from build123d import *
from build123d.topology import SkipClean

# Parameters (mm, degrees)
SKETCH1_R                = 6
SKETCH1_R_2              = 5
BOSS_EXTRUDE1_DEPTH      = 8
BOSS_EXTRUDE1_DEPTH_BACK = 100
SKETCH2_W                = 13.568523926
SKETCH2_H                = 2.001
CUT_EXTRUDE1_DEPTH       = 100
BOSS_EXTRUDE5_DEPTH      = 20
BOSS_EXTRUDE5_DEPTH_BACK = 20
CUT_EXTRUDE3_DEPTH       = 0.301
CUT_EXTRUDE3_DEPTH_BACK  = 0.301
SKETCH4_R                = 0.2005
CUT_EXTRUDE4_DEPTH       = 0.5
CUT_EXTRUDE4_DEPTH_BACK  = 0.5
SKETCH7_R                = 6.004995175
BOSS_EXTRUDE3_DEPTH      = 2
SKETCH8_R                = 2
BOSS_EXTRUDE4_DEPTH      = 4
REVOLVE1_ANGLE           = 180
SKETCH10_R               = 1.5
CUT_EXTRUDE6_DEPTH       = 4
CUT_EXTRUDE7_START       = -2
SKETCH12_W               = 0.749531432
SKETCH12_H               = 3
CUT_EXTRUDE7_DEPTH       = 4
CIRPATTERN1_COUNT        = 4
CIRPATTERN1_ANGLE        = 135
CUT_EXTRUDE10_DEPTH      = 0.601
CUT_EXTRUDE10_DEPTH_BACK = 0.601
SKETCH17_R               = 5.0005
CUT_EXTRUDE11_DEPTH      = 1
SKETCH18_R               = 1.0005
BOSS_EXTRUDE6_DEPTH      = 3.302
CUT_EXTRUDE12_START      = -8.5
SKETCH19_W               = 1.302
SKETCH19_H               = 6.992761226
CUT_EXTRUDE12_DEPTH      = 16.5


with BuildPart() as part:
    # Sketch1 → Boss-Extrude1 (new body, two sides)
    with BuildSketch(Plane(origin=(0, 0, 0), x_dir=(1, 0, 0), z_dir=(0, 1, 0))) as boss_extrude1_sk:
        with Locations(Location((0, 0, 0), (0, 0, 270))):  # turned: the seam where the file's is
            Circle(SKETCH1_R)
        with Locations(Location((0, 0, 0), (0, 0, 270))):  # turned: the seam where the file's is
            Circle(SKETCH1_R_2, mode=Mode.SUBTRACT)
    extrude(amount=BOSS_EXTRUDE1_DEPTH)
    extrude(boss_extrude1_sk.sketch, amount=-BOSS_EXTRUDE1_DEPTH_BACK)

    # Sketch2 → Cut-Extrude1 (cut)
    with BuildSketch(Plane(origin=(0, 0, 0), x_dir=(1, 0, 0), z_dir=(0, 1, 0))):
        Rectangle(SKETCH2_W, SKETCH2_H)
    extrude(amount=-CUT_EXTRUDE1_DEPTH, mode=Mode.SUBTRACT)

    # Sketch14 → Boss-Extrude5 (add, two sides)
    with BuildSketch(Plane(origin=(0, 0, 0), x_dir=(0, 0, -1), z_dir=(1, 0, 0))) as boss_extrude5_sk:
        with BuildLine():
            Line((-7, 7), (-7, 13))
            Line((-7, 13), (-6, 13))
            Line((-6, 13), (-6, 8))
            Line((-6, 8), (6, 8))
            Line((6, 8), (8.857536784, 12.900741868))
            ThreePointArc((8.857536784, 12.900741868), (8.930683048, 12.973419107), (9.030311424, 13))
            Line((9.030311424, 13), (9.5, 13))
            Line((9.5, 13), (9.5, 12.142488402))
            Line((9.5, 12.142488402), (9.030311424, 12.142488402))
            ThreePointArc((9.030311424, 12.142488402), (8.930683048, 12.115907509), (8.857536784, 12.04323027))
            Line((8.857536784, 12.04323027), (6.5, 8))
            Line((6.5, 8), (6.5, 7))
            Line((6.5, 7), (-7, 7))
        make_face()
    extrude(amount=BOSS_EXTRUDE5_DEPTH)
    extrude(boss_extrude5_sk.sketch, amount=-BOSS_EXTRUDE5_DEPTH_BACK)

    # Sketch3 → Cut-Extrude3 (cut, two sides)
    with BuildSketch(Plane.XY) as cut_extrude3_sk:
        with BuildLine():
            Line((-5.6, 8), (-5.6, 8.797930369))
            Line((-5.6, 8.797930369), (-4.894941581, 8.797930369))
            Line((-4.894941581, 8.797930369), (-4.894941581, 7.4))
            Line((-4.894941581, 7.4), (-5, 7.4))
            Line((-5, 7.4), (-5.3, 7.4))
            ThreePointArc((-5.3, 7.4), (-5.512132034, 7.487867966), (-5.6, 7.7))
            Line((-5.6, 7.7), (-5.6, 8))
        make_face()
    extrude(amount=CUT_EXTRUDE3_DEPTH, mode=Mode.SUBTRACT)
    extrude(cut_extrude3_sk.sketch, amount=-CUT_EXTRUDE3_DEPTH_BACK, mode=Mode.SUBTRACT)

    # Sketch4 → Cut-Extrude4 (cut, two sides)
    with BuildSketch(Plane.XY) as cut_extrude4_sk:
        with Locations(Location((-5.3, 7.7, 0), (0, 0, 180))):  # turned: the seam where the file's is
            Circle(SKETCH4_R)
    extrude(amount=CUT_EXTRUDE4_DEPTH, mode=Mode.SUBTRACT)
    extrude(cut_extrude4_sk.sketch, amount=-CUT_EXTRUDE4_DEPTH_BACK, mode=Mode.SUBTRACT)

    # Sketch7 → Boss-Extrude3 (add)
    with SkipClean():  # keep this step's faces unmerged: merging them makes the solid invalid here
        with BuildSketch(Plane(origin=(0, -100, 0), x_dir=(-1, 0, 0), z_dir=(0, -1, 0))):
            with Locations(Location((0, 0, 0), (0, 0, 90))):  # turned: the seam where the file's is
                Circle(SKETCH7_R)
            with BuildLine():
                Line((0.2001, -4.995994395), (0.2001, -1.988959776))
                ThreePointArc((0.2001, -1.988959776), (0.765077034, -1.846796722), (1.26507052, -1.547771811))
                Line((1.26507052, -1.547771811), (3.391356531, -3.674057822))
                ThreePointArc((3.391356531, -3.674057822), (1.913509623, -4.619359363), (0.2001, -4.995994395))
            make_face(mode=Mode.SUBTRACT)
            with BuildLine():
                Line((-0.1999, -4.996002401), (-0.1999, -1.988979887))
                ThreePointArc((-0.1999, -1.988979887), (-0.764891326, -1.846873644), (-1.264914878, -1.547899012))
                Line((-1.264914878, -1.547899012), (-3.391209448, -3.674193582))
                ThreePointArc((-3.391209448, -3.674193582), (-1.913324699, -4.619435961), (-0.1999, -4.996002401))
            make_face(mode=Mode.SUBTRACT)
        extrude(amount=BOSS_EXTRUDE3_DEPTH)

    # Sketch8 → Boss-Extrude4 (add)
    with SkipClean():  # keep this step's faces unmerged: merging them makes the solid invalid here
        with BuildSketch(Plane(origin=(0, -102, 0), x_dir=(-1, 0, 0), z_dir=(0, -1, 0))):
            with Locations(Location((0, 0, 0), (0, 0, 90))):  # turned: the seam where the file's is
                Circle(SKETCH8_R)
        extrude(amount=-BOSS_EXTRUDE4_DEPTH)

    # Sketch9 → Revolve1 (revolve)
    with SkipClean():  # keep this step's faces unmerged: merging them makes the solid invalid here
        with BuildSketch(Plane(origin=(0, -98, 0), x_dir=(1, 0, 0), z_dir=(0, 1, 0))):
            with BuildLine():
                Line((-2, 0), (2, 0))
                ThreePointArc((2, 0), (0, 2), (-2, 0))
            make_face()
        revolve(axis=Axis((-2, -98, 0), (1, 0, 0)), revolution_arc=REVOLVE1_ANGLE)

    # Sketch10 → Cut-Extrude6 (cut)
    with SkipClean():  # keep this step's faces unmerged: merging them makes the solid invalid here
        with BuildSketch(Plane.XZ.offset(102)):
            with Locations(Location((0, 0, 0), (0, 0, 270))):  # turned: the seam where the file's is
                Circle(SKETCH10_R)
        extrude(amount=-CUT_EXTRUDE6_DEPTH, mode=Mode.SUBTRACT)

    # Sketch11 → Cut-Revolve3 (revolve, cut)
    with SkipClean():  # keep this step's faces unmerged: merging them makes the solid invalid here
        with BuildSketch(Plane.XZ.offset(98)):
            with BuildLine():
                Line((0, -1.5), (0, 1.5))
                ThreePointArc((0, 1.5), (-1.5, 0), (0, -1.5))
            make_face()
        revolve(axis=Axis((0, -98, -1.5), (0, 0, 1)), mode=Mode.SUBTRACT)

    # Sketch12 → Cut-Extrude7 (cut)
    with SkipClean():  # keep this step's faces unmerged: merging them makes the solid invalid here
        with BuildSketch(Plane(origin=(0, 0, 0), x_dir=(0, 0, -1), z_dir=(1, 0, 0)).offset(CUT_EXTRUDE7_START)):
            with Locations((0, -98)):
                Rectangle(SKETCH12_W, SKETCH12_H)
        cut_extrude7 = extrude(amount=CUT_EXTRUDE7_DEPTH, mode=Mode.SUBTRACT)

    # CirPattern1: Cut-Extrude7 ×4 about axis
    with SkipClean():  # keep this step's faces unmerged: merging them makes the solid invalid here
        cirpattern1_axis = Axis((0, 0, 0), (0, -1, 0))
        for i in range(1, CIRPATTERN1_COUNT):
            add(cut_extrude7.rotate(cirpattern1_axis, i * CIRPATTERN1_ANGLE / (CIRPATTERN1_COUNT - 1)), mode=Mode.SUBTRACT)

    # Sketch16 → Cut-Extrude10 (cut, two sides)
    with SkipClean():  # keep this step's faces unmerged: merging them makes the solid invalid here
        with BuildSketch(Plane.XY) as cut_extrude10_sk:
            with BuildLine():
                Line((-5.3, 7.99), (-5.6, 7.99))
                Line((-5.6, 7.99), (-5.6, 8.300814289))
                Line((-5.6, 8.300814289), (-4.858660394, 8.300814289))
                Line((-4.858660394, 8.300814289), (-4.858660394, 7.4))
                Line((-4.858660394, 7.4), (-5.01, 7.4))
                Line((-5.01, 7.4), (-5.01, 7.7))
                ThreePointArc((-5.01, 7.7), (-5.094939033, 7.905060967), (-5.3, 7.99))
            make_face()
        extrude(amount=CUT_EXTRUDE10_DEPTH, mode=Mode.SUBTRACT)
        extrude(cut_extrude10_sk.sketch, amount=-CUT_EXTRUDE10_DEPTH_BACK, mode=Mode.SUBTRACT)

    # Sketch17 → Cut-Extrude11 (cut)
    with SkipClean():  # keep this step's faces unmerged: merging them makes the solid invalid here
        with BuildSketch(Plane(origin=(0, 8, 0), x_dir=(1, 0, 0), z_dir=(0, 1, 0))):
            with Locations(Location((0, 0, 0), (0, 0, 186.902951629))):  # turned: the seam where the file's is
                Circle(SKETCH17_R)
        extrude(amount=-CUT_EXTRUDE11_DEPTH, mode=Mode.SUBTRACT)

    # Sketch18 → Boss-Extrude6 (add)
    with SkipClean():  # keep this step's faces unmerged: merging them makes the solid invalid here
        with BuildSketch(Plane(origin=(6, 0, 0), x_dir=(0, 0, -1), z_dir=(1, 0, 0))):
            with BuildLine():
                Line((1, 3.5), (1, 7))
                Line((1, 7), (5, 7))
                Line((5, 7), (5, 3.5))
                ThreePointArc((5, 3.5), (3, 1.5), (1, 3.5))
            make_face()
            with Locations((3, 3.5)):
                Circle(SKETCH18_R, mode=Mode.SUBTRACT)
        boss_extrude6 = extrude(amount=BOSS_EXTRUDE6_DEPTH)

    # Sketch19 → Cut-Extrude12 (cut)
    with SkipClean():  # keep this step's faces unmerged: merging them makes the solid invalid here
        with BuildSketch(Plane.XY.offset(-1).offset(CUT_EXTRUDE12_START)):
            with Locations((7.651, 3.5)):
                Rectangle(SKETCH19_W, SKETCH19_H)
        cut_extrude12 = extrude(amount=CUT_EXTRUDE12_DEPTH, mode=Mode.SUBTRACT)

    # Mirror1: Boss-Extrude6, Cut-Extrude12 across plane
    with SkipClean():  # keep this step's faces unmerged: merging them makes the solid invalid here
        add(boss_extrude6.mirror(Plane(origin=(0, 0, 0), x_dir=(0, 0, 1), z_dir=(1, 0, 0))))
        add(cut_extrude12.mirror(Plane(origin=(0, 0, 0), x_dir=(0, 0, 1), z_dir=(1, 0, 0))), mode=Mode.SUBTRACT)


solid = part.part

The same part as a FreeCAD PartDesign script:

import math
import FreeCAD as App
import Part
import Sketcher

V = App.Vector
Q = App.Units.Quantity


def add_polygon(sketch, points):
    """Adds a closed chain of lines whose ends are joined by coincident constraints."""
    first, n = sketch.GeometryCount, len(points)
    for a, b in zip(points, points[1:] + points[:1]):
        sketch.addGeometry(Part.LineSegment(App.Vector(*a, 0), App.Vector(*b, 0)), False)
    for i in range(n):
        sketch.addConstraint(Sketcher.Constraint("Coincident", first + i, 2, first + (i + 1) % n, 1))

doc = App.newDocument("Part")
body = doc.addObject("PartDesign::Body", "Body")

# Sketch on XZ plane
sketch1 = body.newObject("Sketcher::SketchObject", "Sketch")
sketch1.AttachmentSupport = (doc.getObject("XZ_Plane"), [""])
sketch1.MapMode = "FlatFace"
sketch1.addGeometry([
    Part.Circle(V(0, 0, 0), V(0, 0, 1), 6),
    Part.Circle(V(0, 0, 0), V(0, 0, 1), 5),
], False)
sketch1.addConstraint([
    Sketcher.Constraint("Coincident", 0, 3, -1, 1),
    Sketcher.Constraint("Coincident", 1, 3, -1, 1),
    Sketcher.Constraint("Diameter", 0, Q("12 mm")),
    Sketcher.Constraint("Diameter", 1, Q("10 mm")),
])
pad1 = body.newObject("PartDesign::Pad", "Pad")
pad1.Profile = sketch1
pad1.Type = "TwoLengths"
pad1.Length = 8
pad1.Length2 = 100
pad1.Reversed = True

# Sketch on XZ plane
sketch2 = body.newObject("Sketcher::SketchObject", "Sketch001")
sketch2.AttachmentSupport = (doc.getObject("XZ_Plane"), [""])
sketch2.MapMode = "FlatFace"
add_polygon(sketch2, [(-6.8, -1), (-6.8, 1), (6.8, 1), (6.8, -1)])  # lines 0-3
sketch2.addConstraint([
    Sketcher.Constraint("Vertical", 0),
    Sketcher.Constraint("Horizontal", 1),
    Sketcher.Constraint("Vertical", 2),
    Sketcher.Constraint("Horizontal", 3),
    Sketcher.Constraint("Symmetric", 0, 2, 2, 2, -1, 1),
    Sketcher.Constraint("DistanceY", 0, 1, 0, 2, Q("2.001 mm")),
    Sketcher.Constraint("DistanceX", 1, 1, 1, 2, Q("13.568524 mm")),
])
pocket1 = body.newObject("PartDesign::Pocket", "Pocket")
pocket1.Profile = sketch2
pocket1.Length = 100
pocket1.Reversed = True

# Sketch on YZ plane
sketch3 = body.newObject("Sketcher::SketchObject", "Sketch002")
sketch3.AttachmentSupport = (doc.getObject("YZ_Plane"), [""])
sketch3.MapMode = "FlatFace"
sketch3.addGeometry([
    Part.LineSegment(V(13, 7, 0), V(7, 7, 0)),  # 0
    Part.LineSegment(V(7, 7, 0), V(7, -6.5, 0)),  # 1
    Part.LineSegment(V(7, -6.5, 0), V(8, -6.5, 0)),  # 2
    Part.LineSegment(V(8, -6.5, 0), V(12.04, -8.86, 0)),  # 3
    Part.ArcOfCircle(Part.Circle(V(11.94, -9.03, 0), V(0, 0, 1), 0.2), math.radians(0), math.radians(60)),  # 4
    Part.LineSegment(V(12.14, -9.03, 0), V(12.14, -9.5, 0)),  # 5
    Part.LineSegment(V(12.14, -9.5, 0), V(13, -9.5, 0)),  # 6
    Part.LineSegment(V(13, -9.5, 0), V(13, -9.03, 0)),  # 7
    Part.ArcOfCircle(Part.Circle(V(12.8, -9.03, 0), V(0, 0, 1), 0.2), math.radians(0), math.radians(60)),  # 8
    Part.LineSegment(V(12.9, -8.86, 0), V(8, -6, 0)),  # 9
    Part.LineSegment(V(8, -6, 0), V(8, 6, 0)),  # 10
    Part.LineSegment(V(8, 6, 0), V(13, 6, 0)),  # 11
    Part.LineSegment(V(13, 6, 0), V(13, 7, 0)),  # 12
], False)
sketch3.addConstraint([
    Sketcher.Constraint("Coincident", 0, 2, 1, 1),
    Sketcher.Constraint("Coincident", 1, 2, 2, 1),
    Sketcher.Constraint("Coincident", 2, 2, 3, 1),
    Sketcher.Constraint("Tangent", 3, 2, 4, 2),
    Sketcher.Constraint("Tangent", 4, 1, 5, 1),
    Sketcher.Constraint("Coincident", 5, 2, 6, 1),
    Sketcher.Constraint("Coincident", 6, 2, 7, 1),
    Sketcher.Constraint("Tangent", 7, 2, 8, 1),
    Sketcher.Constraint("Tangent", 8, 2, 9, 1),
    Sketcher.Constraint("Coincident", 9, 2, 10, 1),
    Sketcher.Constraint("Coincident", 10, 2, 11, 1),
    Sketcher.Constraint("Coincident", 11, 2, 12, 1),
    Sketcher.Constraint("Coincident", 12, 2, 0, 1),
    Sketcher.Constraint("Horizontal", 0),
    Sketcher.Constraint("Vertical", 1),
    Sketcher.Constraint("Horizontal", 2),
    Sketcher.Constraint("Vertical", 5),
    Sketcher.Constraint("Horizontal", 6),
    Sketcher.Constraint("Vertical", 7),
    Sketcher.Constraint("Vertical", 10),
    Sketcher.Constraint("Horizontal", 11),
    Sketcher.Constraint("Vertical", 12),
    Sketcher.Constraint("Equal", 4, 8),
    Sketcher.Constraint("Parallel", 3, 9),
    Sketcher.Constraint("Horizontal", 4, 3, 8, 3),
    Sketcher.Constraint("Vertical", 2, 2, 9, 2),
    Sketcher.Constraint("Vertical", 7, 2, 11, 2),
    Sketcher.Constraint("Equal", 2, 12),
    Sketcher.Constraint("Radius", 4, Q("0.2 mm")),
    Sketcher.Constraint("DistanceX", 0, 2, 0, 1, Q("6 mm")),
    Sketcher.Constraint("DistanceX", 2, 1, 2, 2, Q("1 mm")),
    Sketcher.Constraint("DistanceY", 10, 1, 10, 2, Q("12 mm")),
    Sketcher.Constraint("DistanceY", 1, 2, 1, 1, Q("13.5 mm")),
    Sketcher.Constraint("DistanceX", -1, 1, 0, 2, Q("7 mm")),
    Sketcher.Constraint("DistanceY", -1, 1, 0, 2, Q("7 mm")),
    Sketcher.Constraint("DistanceY", 5, 2, 2, 2, Q("3 mm")),
    Sketcher.Constraint("DistanceX", 6, 1, 6, 2, Q("0.857512 mm")),
])
pad2 = body.newObject("PartDesign::Pad", "Pad001")
pad2.Profile = sketch3
pad2.Type = "TwoLengths"
pad2.Length = 20
pad2.Length2 = 20

# Sketch on XY plane
sketch4 = body.newObject("Sketcher::SketchObject", "Sketch003")
sketch4.AttachmentSupport = (doc.getObject("XY_Plane"), [""])
sketch4.MapMode = "FlatFace"
sketch4.addGeometry([
    Part.LineSegment(V(-4.89, 8.8, 0), V(-5.6, 8.8, 0)),  # 0
    Part.LineSegment(V(-5.6, 8.8, 0), V(-5.6, 7.7, 0)),  # 1
    Part.ArcOfCircle(Part.Circle(V(-5.3, 7.7, 0), V(0, 0, 1), 0.3), math.radians(-180), math.radians(-90)),  # 2
    Part.LineSegment(V(-5.3, 7.4, 0), V(-4.89, 7.4, 0)),  # 3
    Part.LineSegment(V(-4.89, 7.4, 0), V(-4.89, 8.8, 0)),  # 4
], False)
sketch4.addConstraint([
    Sketcher.Constraint("Coincident", 0, 2, 1, 1),
    Sketcher.Constraint("Tangent", 1, 2, 2, 1),
    Sketcher.Constraint("Tangent", 2, 2, 3, 1),
    Sketcher.Constraint("Coincident", 3, 2, 4, 1),
    Sketcher.Constraint("Coincident", 4, 2, 0, 1),
    Sketcher.Constraint("Horizontal", 0),
    Sketcher.Constraint("Vertical", 1),
    Sketcher.Constraint("Horizontal", 3),
    Sketcher.Constraint("Vertical", 4),
    Sketcher.Constraint("Radius", 2, Q("0.3 mm")),
    Sketcher.Constraint("DistanceX", 2, 3, -1, 1, Q("5.3 mm")),
    Sketcher.Constraint("DistanceY", -1, 1, 2, 3, Q("7.7 mm")),
    Sketcher.Constraint("DistanceX", 0, 2, 0, 1, Q("0.705058 mm")),
    Sketcher.Constraint("DistanceY", 1, 2, 1, 1, Q("1.09793 mm")),
])
pocket2 = body.newObject("PartDesign::Pocket", "Pocket001")
pocket2.Profile = sketch4
pocket2.Type = "TwoLengths"
pocket2.Length = 0.301
pocket2.Length2 = 0.301
pocket2.Reversed = True

# Sketch on XY plane
sketch5 = body.newObject("Sketcher::SketchObject", "Sketch004")
sketch5.AttachmentSupport = (doc.getObject("XY_Plane"), [""])
sketch5.MapMode = "FlatFace"
sketch5.addGeometry(Part.Circle(V(-5.3, 7.7, 0), V(0, 0, 1), 0.2), False)
sketch5.addConstraint([
    Sketcher.Constraint("Diameter", 0, Q("0.401 mm")),
    Sketcher.Constraint("DistanceX", 0, 3, -1, 1, Q("5.3 mm")),
    Sketcher.Constraint("DistanceY", -1, 1, 0, 3, Q("7.7 mm")),
])
pocket3 = body.newObject("PartDesign::Pocket", "Pocket002")
pocket3.Profile = sketch5
pocket3.Type = "TwoLengths"
pocket3.Length = 0.5
pocket3.Length2 = 0.5
pocket3.Reversed = True

# Sketch on XZ plane
sketch6 = body.newObject("Sketcher::SketchObject", "Sketch005")
sketch6.AttachmentSupport = (doc.getObject("XZ_Plane"), [""])
sketch6.MapMode = "FlatFace"
sketch6.AttachmentOffset = App.Placement(V(0, 0, 100), App.Rotation())
sketch6.addGeometry([
    Part.Circle(V(0, 0, 0), V(0, 0, 1), 6),  # 0
    Part.ArcOfCircle(Part.Circle(V(0, 0, 0), V(0, 0, 1), 5), math.radians(92), math.radians(133)),  # 1
    Part.LineSegment(V(-0.2, 5, 0), V(-0.2, 2, 0)),  # 2
    Part.ArcOfCircle(Part.Circle(V(0, 0, 0), V(0, 0, 1), 2), math.radians(96), math.radians(129)),  # 3
    Part.LineSegment(V(-1.3, 1.5, 0), V(-3.4, 3.7, 0)),  # 4
    Part.LineSegment(V(0.2, 2, 0), V(0.2, 5, 0)),  # 5
    Part.ArcOfCircle(Part.Circle(V(0, 0, 0), V(0, 0, 1), 5), math.radians(47), math.radians(88)),  # 6
    Part.LineSegment(V(3.4, 3.7, 0), V(1.3, 1.5, 0)),  # 7
    Part.ArcOfCircle(Part.Circle(V(0, 0, 0), V(0, 0, 1), 2), math.radians(51), math.radians(84)),  # 8
], False)
sketch6.addConstraint([
    Sketcher.Constraint("Coincident", 1, 1, 2, 1),
    Sketcher.Constraint("Coincident", 2, 2, 3, 1),
    Sketcher.Constraint("Coincident", 3, 2, 4, 1),
    Sketcher.Constraint("Coincident", 4, 2, 1, 2),
    Sketcher.Constraint("Coincident", 5, 2, 6, 2),
    Sketcher.Constraint("Coincident", 6, 1, 7, 1),
    Sketcher.Constraint("Coincident", 7, 2, 8, 1),
    Sketcher.Constraint("Coincident", 8, 2, 5, 1),
    Sketcher.Constraint("Vertical", 2),
    Sketcher.Constraint("Vertical", 5),
    Sketcher.Constraint("Coincident", 0, 3, -1, 1),
    Sketcher.Constraint("Coincident", 1, 3, -1, 1),
    Sketcher.Constraint("Coincident", 3, 3, -1, 1),
    Sketcher.Constraint("Coincident", 6, 3, -1, 1),
    Sketcher.Constraint("Coincident", 8, 3, -1, 1),
    Sketcher.Constraint("Equal", 1, 6),
    Sketcher.Constraint("Equal", 3, 8),
    Sketcher.Constraint("Perpendicular", 4, 7),
    Sketcher.Constraint("Radius", 1, Q("5 mm")),
    Sketcher.Constraint("Angle", 4, Q("135 deg")),
    Sketcher.Constraint("Radius", 3, Q("1.999 mm")),
    Sketcher.Constraint("DistanceX", 1, 1, 5, 2, Q("0.4 mm")),
    Sketcher.Constraint("Diameter", 0, Q("12.00999 mm")),
    Sketcher.Constraint("DistanceX", 1, 1, -1, 1, Q("0.2001 mm")),
    Sketcher.Constraint("DistanceY", -1, 1, 7, 2, Q("1.547899 mm")),
    Sketcher.Constraint("DistanceY", 2, 2, 4, 2, Q("1.685098 mm")),
])
pad3 = body.newObject("PartDesign::Pad", "Pad002")
pad3.Profile = sketch6
pad3.Length = 2

# Sketch on XZ plane
sketch7 = body.newObject("Sketcher::SketchObject", "Sketch006")
sketch7.AttachmentSupport = (doc.getObject("XZ_Plane"), [""])
sketch7.MapMode = "FlatFace"
sketch7.AttachmentOffset = App.Placement(V(0, 0, 102), App.Rotation())
sketch7.addGeometry(Part.Circle(V(0, 0, 0), V(0, 0, 1), 2), False)
sketch7.addConstraint([
    Sketcher.Constraint("Coincident", 0, 3, -1, 1),
    Sketcher.Constraint("Diameter", 0, Q("4 mm")),
])
pad4 = body.newObject("PartDesign::Pad", "Pad003")
pad4.Profile = sketch7
pad4.Length = 4
pad4.Reversed = True

# Sketch on XZ plane
sketch8 = body.newObject("Sketcher::SketchObject", "Sketch007")
sketch8.AttachmentSupport = (doc.getObject("XZ_Plane"), [""])
sketch8.MapMode = "FlatFace"
sketch8.AttachmentOffset = App.Placement(V(0, 0, 98), App.Rotation())
sketch8.addGeometry([
    Part.LineSegment(V(-2, 0, 0), V(2, 0, 0)),
    Part.ArcOfCircle(Part.Circle(V(0, 0, 0), V(0, 0, 1), 2), math.radians(180), math.radians(360)),
], False)
sketch8.addConstraint([
    Sketcher.Constraint("Coincident", 0, 1, 1, 1),
    Sketcher.Constraint("Coincident", 1, 2, 0, 2),
    Sketcher.Constraint("Horizontal", 0),
    Sketcher.Constraint("Coincident", 1, 3, -1, 1),
    Sketcher.Constraint("PointOnObject", 0, 1, -1),
    Sketcher.Constraint("Radius", 1, Q("2 mm")),
])
revolution = body.newObject("PartDesign::Revolution", "Revolution")
revolution.Profile = sketch8
revolution.ReferenceAxis = (sketch8, ["H_Axis"])
revolution.Angle = 180

# Sketch on XZ plane
sketch9 = body.newObject("Sketcher::SketchObject", "Sketch008")
sketch9.AttachmentSupport = (doc.getObject("XZ_Plane"), [""])
sketch9.MapMode = "FlatFace"
sketch9.AttachmentOffset = App.Placement(V(0, 0, 102), App.Rotation())
sketch9.addGeometry(Part.Circle(V(0, 0, 0), V(0, 0, 1), 1.5), False)
sketch9.addConstraint([
    Sketcher.Constraint("Coincident", 0, 3, -1, 1),
    Sketcher.Constraint("Diameter", 0, Q("3 mm")),
])
pocket4 = body.newObject("PartDesign::Pocket", "Pocket003")
pocket4.Profile = sketch9
pocket4.Length = 4

# Sketch on XZ plane
sketch10 = body.newObject("Sketcher::SketchObject", "Sketch009")
sketch10.AttachmentSupport = (doc.getObject("XZ_Plane"), [""])
sketch10.MapMode = "FlatFace"
sketch10.AttachmentOffset = App.Placement(V(0, 0, 98), App.Rotation())
sketch10.addGeometry([
    Part.LineSegment(V(0, -1.5, 0), V(0, 1.5, 0)),
    Part.ArcOfCircle(Part.Circle(V(0, 0, 0), V(0, 0, 1), 1.5), math.radians(90), math.radians(270)),
], False)
sketch10.addConstraint([
    Sketcher.Constraint("Coincident", 0, 1, 1, 2),
    Sketcher.Constraint("Coincident", 1, 1, 0, 2),
    Sketcher.Constraint("Vertical", 0),
    Sketcher.Constraint("Coincident", 1, 3, -1, 1),
    Sketcher.Constraint("PointOnObject", 0, 1, -2),
    Sketcher.Constraint("Radius", 1, Q("1.5 mm")),
])
groove = body.newObject("PartDesign::Groove", "Groove")
groove.Profile = sketch10
groove.ReferenceAxis = (sketch10, ["V_Axis"])
groove.Angle = 360

# Sketch on YZ plane
sketch11 = body.newObject("Sketcher::SketchObject", "Sketch010")
sketch11.AttachmentSupport = (doc.getObject("YZ_Plane"), [""])
sketch11.MapMode = "FlatFace"
sketch11.AttachmentOffset = App.Placement(V(0, 0, -2), App.Rotation())
add_polygon(sketch11, [(-96.5, 0.4), (-99.5, 0.4), (-99.5, -0.4), (-96.5, -0.4)])  # lines 0-3
sketch11.addConstraint([
    Sketcher.Constraint("Horizontal", 0),
    Sketcher.Constraint("Vertical", 1),
    Sketcher.Constraint("Horizontal", 2),
    Sketcher.Constraint("Vertical", 3),
    Sketcher.Constraint("DistanceX", 0, 2, 0, 1, Q("3 mm")),
    Sketcher.Constraint("DistanceX", 0, 2, -1, 1, Q("99.5 mm")),
    Sketcher.Constraint("DistanceY", 1, 2, 1, 1, Q("0.749531 mm")),
    Sketcher.Constraint("DistanceY", -1, 1, 0, 2, Q("0.374766 mm")),
])
pocket5 = body.newObject("PartDesign::Pocket", "Pocket004")
pocket5.Profile = sketch11
pocket5.Length = 4
pocket5.Reversed = True
doc.recompute()

polarpattern = body.newObject("PartDesign::PolarPattern", "PolarPattern")
polarpattern.Originals = [pocket5]
polarpattern.Axis = (doc.getObject("Y_Axis"), [""])
polarpattern.Angle = 135
polarpattern.Occurrences = 4
polarpattern.Reversed = True
body.Tip = polarpattern

# Sketch on XY plane
sketch12 = body.newObject("Sketcher::SketchObject", "Sketch011")
sketch12.AttachmentSupport = (doc.getObject("XY_Plane"), [""])
sketch12.MapMode = "FlatFace"
sketch12.addGeometry([
    Part.LineSegment(V(-5.6, 7.99, 0), V(-5.3, 7.99, 0)),  # 0
    Part.ArcOfCircle(Part.Circle(V(-5.3, 7.7, 0), V(0, 0, 1), 0.29), math.radians(0), math.radians(90)),  # 1
    Part.LineSegment(V(-5.01, 7.7, 0), V(-5.01, 7.4, 0)),  # 2
    Part.LineSegment(V(-5.01, 7.4, 0), V(-4.86, 7.4, 0)),  # 3
    Part.LineSegment(V(-4.86, 7.4, 0), V(-4.86, 8.3, 0)),  # 4
    Part.LineSegment(V(-4.86, 8.3, 0), V(-5.6, 8.3, 0)),  # 5
    Part.LineSegment(V(-5.6, 8.3, 0), V(-5.6, 7.99, 0)),  # 6
], False)
sketch12.addConstraint([
    Sketcher.Constraint("Tangent", 0, 2, 1, 2),
    Sketcher.Constraint("Tangent", 1, 1, 2, 1),
    Sketcher.Constraint("Coincident", 2, 2, 3, 1),
    Sketcher.Constraint("Coincident", 3, 2, 4, 1),
    Sketcher.Constraint("Coincident", 4, 2, 5, 1),
    Sketcher.Constraint("Coincident", 5, 2, 6, 1),
    Sketcher.Constraint("Coincident", 6, 2, 0, 1),
    Sketcher.Constraint("Horizontal", 0),
    Sketcher.Constraint("Vertical", 2),
    Sketcher.Constraint("Horizontal", 3),
    Sketcher.Constraint("Vertical", 4),
    Sketcher.Constraint("Horizontal", 5),
    Sketcher.Constraint("Vertical", 6),
    Sketcher.Constraint("Equal", 0, 2),
    Sketcher.Constraint("Radius", 1, Q("0.29 mm")),
    Sketcher.Constraint("DistanceX", 0, 1, 0, 2, Q("0.3 mm")),
    Sketcher.Constraint("DistanceX", 1, 3, -1, 1, Q("5.3 mm")),
    Sketcher.Constraint("DistanceY", -1, 1, 1, 3, Q("7.7 mm")),
    Sketcher.Constraint("DistanceX", 3, 1, 3, 2, Q("0.15134 mm")),
    Sketcher.Constraint("DistanceY", 4, 1, 4, 2, Q("0.900814 mm")),
])
pocket6 = body.newObject("PartDesign::Pocket", "Pocket005")
pocket6.Profile = sketch12
pocket6.Type = "TwoLengths"
pocket6.Length = 0.601
pocket6.Length2 = 0.601
pocket6.Reversed = True

# Sketch on XZ plane
sketch13 = body.newObject("Sketcher::SketchObject", "Sketch012")
sketch13.AttachmentSupport = (doc.getObject("XZ_Plane"), [""])
sketch13.MapMode = "FlatFace"
sketch13.AttachmentOffset = App.Placement(V(0, 0, -8), App.Rotation())
sketch13.addGeometry(Part.Circle(V(0, 0, 0), V(0, 0, 1), 5), False)
sketch13.addConstraint([
    Sketcher.Constraint("Coincident", 0, 3, -1, 1),
    Sketcher.Constraint("Diameter", 0, Q("10.001 mm")),
])
pocket7 = body.newObject("PartDesign::Pocket", "Pocket006")
pocket7.Profile = sketch13
pocket7.Length = 1
pocket7.Reversed = True

# Sketch on YZ plane
sketch14 = body.newObject("Sketcher::SketchObject", "Sketch013")
sketch14.AttachmentSupport = (doc.getObject("YZ_Plane"), [""])
sketch14.MapMode = "FlatFace"
sketch14.AttachmentOffset = App.Placement(V(0, 0, 6), App.Rotation())
sketch14.addGeometry([
    Part.LineSegment(V(7, -1, 0), V(3.5, -1, 0)),  # 0
    Part.ArcOfCircle(Part.Circle(V(3.5, -3, 0), V(0, 0, 1), 2), math.radians(90), math.radians(270)),  # 1
    Part.LineSegment(V(3.5, -5, 0), V(7, -5, 0)),  # 2
    Part.LineSegment(V(7, -5, 0), V(7, -1, 0)),  # 3
    Part.Circle(V(3.5, -3, 0), V(0, 0, 1), 1),  # 4
], False)
sketch14.addConstraint([
    Sketcher.Constraint("Tangent", 0, 2, 1, 1),
    Sketcher.Constraint("Tangent", 1, 2, 2, 1),
    Sketcher.Constraint("Coincident", 2, 2, 3, 1),
    Sketcher.Constraint("Coincident", 3, 2, 0, 1),
    Sketcher.Constraint("Horizontal", 0),
    Sketcher.Constraint("Horizontal", 2),
    Sketcher.Constraint("Vertical", 3),
    Sketcher.Constraint("Coincident", 4, 3, 1, 3),
    Sketcher.Constraint("Radius", 1, Q("2 mm")),
    Sketcher.Constraint("Diameter", 4, Q("2.001 mm")),
    Sketcher.Constraint("DistanceX", 0, 2, 0, 1, Q("3.5 mm")),
    Sketcher.Constraint("DistanceY", 1, 3, -1, 1, Q("3 mm")),
    Sketcher.Constraint("DistanceX", -1, 1, 2, 2, Q("7 mm")),
])
pad5 = body.newObject("PartDesign::Pad", "Pad004")
pad5.Profile = sketch14
pad5.Length = 3.302

# Sketch on XY plane
sketch15 = body.newObject("Sketcher::SketchObject", "Sketch014")
sketch15.AttachmentSupport = (doc.getObject("XY_Plane"), [""])
sketch15.MapMode = "FlatFace"
sketch15.AttachmentOffset = App.Placement(V(0, 0, -9.5), App.Rotation())
add_polygon(sketch15, [(7, 7), (7, 0), (8.3, 0), (8.3, 7)])  # lines 0-3
sketch15.addConstraint([
    Sketcher.Constraint("Vertical", 0),
    Sketcher.Constraint("Horizontal", 1),
    Sketcher.Constraint("Vertical", 2),
    Sketcher.Constraint("Horizontal", 3),
    Sketcher.Constraint("DistanceX", -1, 1, 0, 2, Q("7 mm")),
    Sketcher.Constraint("DistanceX", 1, 1, 1, 2, Q("1.302 mm")),
    Sketcher.Constraint("DistanceY", 0, 2, 0, 1, Q("6.992761 mm")),
    Sketcher.Constraint("DistanceY", -1, 1, 0, 2, Q("0.003619 mm")),
])
pocket8 = body.newObject("PartDesign::Pocket", "Pocket007")
pocket8.Profile = sketch15
pocket8.Length = 16.5
pocket8.Reversed = True
doc.recompute()

mirrored = body.newObject("PartDesign::Mirrored", "Mirrored")
mirrored.Originals = [pad5, pocket8]
mirrored.MirrorPlane = (doc.getObject("YZ_Plane"), [""])
body.Tip = mirrored

doc.recompute()
